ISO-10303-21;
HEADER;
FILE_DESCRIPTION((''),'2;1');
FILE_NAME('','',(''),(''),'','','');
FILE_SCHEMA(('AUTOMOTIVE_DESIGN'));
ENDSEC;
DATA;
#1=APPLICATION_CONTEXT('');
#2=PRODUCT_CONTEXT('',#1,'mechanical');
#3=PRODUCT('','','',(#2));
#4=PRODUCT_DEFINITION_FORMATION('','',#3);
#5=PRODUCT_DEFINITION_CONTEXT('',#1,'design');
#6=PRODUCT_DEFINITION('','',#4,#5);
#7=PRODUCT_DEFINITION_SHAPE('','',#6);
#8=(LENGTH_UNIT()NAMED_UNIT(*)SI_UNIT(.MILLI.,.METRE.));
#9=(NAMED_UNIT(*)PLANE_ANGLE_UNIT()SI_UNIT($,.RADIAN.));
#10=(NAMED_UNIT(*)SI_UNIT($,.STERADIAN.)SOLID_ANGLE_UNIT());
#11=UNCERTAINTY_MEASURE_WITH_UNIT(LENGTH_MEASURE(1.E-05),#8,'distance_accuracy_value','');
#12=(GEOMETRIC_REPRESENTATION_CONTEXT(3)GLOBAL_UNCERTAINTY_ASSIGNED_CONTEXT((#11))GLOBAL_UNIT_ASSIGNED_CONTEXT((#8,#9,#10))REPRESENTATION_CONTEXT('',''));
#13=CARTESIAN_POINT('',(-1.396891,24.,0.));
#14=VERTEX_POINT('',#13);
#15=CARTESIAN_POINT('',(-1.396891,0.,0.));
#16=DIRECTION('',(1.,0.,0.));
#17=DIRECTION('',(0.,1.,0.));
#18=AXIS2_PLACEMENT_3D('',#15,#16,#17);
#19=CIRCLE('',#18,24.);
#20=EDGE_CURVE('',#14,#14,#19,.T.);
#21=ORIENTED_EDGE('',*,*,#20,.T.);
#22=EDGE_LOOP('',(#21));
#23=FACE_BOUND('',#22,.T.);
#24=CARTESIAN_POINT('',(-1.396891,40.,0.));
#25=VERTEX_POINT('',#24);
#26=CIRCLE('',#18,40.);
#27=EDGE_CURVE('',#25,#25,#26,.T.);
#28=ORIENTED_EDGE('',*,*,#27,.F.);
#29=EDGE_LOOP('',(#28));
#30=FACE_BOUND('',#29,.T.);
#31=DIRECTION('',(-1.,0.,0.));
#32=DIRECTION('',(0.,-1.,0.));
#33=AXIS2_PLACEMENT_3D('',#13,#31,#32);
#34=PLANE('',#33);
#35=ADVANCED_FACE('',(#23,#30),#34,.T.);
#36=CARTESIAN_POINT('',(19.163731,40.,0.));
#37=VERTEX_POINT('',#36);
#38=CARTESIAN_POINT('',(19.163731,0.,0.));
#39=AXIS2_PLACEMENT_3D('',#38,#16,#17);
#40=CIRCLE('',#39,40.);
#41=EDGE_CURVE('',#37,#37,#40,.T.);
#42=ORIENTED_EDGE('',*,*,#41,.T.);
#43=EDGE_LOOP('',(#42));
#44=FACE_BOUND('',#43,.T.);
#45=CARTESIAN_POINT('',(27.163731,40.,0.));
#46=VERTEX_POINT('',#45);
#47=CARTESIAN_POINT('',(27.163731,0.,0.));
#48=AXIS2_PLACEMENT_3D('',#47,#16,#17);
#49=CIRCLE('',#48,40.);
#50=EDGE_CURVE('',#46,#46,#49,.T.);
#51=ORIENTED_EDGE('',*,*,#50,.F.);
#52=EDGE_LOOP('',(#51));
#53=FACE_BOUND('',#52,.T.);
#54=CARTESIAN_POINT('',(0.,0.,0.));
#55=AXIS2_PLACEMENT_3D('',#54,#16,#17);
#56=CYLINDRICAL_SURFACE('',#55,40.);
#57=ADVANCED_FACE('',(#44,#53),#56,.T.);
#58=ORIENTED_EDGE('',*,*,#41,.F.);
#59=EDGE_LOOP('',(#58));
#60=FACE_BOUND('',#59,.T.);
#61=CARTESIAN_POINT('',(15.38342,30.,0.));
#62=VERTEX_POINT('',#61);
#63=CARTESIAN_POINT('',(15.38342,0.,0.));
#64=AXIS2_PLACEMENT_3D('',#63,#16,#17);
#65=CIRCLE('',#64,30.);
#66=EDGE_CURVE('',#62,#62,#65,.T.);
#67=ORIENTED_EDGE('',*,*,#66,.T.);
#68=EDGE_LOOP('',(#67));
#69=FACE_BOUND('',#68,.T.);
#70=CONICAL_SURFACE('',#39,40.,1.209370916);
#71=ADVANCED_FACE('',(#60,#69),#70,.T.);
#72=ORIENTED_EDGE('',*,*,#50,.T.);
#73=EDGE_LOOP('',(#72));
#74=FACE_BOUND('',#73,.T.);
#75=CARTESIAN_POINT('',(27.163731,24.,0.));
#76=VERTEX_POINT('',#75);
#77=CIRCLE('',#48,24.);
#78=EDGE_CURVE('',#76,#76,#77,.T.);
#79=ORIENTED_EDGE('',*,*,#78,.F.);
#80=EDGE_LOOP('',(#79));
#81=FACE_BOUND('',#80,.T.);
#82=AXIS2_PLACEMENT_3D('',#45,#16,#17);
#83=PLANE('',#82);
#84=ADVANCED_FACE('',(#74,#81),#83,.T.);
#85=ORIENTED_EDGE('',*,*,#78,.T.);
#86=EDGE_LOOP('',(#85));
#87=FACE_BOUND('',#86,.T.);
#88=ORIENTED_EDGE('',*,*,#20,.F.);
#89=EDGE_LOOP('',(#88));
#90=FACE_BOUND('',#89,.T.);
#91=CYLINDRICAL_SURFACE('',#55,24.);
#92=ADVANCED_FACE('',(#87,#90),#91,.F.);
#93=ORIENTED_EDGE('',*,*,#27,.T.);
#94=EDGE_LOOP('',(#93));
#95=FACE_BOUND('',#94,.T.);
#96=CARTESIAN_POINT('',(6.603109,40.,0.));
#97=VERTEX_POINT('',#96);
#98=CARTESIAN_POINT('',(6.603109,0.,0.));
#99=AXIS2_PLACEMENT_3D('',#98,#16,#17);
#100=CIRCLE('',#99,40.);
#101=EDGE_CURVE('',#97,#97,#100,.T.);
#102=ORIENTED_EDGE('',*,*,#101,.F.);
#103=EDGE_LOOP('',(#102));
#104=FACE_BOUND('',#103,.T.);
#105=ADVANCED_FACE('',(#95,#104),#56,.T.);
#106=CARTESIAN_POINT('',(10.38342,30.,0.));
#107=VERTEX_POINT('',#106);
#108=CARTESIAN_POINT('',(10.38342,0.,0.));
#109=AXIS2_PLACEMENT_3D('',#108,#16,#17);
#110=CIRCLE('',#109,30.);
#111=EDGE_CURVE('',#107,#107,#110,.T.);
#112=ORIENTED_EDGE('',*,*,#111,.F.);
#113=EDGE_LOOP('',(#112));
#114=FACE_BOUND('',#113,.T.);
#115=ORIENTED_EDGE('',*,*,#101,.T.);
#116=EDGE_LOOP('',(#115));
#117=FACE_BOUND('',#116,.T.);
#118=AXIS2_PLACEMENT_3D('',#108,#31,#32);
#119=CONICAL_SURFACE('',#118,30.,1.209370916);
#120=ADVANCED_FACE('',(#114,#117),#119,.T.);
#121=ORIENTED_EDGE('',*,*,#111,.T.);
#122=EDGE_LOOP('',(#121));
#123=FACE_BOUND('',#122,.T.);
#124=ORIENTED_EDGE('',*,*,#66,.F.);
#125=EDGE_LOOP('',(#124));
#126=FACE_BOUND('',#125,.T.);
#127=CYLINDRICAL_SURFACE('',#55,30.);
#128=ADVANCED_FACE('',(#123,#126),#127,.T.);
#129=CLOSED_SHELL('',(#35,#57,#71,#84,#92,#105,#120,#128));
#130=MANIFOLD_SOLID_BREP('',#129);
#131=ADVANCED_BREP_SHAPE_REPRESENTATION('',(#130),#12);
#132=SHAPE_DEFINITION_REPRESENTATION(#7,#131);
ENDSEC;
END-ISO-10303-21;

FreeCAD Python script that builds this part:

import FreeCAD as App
import Part
import Sketcher

V = App.Vector


def add_polygon(sketch, points):
    """Adds a closed chain of lines whose ends are joined by coincident constraints."""
    first, n = sketch.GeometryCount, len(points)
    for a, b in zip(points, points[1:] + points[:1]):
        sketch.addGeometry(Part.LineSegment(App.Vector(*a, 0), App.Vector(*b, 0)), False)
    for i in range(n):
        sketch.addConstraint(Sketcher.Constraint("Coincident", first + i, 2, first + (i + 1) % n, 1))

doc = App.newDocument("Part")
body = doc.addObject("PartDesign::Body", "Body")

# Sketch on XY plane
sketch1 = doc.addObject("Sketcher::SketchObject", "Sketch")
body.addObject(sketch1)
sketch1.AttachmentSupport = (doc.XY_Plane, [""])
sketch1.MapMode = "FlatFace"
add_polygon(sketch1, [(-1, 24), (27, 24), (27, 40), (19, 40), (15, 30), (10, 30), (7, 40), (-1, 40)])  # lines 0-7
sketch1.addConstraint([
    Sketcher.Constraint("Horizontal", 0),
    Sketcher.Constraint("Vertical", 1),
    Sketcher.Constraint("Horizontal", 2),
    Sketcher.Constraint("Horizontal", 4),
    Sketcher.Constraint("Horizontal", 6),
    Sketcher.Constraint("Vertical", 7),
    Sketcher.Constraint("Horizontal", 2, 2, 5, 2),
    Sketcher.Constraint("Equal", 2, 6),
    Sketcher.Constraint("Equal", 3, 5),
    Sketcher.Constraint("DistanceX", 2, 2, 2, 1, 8.0),
    Sketcher.Constraint("DistanceX", 4, 2, 4, 1, 5.0),
    Sketcher.Constraint("DistanceY", 1, 1, 1, 2, 16.0),
    Sketcher.Constraint("DistanceY", -1, 1, 0, 2, 24.0),
    Sketcher.Constraint("DistanceY", -1, 1, 3, 2, 30.0),
    Sketcher.Constraint("DistanceX", 0, 1, 0, 2, 28.560622),
    Sketcher.Constraint("DistanceX", -1, 1, 0, 2, 27.163731),
])
revolution = doc.addObject("PartDesign::Revolution", "Revolution")
body.addObject(revolution)
revolution.Profile = sketch1
revolution.ReferenceAxis = (sketch1, ["H_Axis"])
revolution.Angle = 360

doc.recompute()
